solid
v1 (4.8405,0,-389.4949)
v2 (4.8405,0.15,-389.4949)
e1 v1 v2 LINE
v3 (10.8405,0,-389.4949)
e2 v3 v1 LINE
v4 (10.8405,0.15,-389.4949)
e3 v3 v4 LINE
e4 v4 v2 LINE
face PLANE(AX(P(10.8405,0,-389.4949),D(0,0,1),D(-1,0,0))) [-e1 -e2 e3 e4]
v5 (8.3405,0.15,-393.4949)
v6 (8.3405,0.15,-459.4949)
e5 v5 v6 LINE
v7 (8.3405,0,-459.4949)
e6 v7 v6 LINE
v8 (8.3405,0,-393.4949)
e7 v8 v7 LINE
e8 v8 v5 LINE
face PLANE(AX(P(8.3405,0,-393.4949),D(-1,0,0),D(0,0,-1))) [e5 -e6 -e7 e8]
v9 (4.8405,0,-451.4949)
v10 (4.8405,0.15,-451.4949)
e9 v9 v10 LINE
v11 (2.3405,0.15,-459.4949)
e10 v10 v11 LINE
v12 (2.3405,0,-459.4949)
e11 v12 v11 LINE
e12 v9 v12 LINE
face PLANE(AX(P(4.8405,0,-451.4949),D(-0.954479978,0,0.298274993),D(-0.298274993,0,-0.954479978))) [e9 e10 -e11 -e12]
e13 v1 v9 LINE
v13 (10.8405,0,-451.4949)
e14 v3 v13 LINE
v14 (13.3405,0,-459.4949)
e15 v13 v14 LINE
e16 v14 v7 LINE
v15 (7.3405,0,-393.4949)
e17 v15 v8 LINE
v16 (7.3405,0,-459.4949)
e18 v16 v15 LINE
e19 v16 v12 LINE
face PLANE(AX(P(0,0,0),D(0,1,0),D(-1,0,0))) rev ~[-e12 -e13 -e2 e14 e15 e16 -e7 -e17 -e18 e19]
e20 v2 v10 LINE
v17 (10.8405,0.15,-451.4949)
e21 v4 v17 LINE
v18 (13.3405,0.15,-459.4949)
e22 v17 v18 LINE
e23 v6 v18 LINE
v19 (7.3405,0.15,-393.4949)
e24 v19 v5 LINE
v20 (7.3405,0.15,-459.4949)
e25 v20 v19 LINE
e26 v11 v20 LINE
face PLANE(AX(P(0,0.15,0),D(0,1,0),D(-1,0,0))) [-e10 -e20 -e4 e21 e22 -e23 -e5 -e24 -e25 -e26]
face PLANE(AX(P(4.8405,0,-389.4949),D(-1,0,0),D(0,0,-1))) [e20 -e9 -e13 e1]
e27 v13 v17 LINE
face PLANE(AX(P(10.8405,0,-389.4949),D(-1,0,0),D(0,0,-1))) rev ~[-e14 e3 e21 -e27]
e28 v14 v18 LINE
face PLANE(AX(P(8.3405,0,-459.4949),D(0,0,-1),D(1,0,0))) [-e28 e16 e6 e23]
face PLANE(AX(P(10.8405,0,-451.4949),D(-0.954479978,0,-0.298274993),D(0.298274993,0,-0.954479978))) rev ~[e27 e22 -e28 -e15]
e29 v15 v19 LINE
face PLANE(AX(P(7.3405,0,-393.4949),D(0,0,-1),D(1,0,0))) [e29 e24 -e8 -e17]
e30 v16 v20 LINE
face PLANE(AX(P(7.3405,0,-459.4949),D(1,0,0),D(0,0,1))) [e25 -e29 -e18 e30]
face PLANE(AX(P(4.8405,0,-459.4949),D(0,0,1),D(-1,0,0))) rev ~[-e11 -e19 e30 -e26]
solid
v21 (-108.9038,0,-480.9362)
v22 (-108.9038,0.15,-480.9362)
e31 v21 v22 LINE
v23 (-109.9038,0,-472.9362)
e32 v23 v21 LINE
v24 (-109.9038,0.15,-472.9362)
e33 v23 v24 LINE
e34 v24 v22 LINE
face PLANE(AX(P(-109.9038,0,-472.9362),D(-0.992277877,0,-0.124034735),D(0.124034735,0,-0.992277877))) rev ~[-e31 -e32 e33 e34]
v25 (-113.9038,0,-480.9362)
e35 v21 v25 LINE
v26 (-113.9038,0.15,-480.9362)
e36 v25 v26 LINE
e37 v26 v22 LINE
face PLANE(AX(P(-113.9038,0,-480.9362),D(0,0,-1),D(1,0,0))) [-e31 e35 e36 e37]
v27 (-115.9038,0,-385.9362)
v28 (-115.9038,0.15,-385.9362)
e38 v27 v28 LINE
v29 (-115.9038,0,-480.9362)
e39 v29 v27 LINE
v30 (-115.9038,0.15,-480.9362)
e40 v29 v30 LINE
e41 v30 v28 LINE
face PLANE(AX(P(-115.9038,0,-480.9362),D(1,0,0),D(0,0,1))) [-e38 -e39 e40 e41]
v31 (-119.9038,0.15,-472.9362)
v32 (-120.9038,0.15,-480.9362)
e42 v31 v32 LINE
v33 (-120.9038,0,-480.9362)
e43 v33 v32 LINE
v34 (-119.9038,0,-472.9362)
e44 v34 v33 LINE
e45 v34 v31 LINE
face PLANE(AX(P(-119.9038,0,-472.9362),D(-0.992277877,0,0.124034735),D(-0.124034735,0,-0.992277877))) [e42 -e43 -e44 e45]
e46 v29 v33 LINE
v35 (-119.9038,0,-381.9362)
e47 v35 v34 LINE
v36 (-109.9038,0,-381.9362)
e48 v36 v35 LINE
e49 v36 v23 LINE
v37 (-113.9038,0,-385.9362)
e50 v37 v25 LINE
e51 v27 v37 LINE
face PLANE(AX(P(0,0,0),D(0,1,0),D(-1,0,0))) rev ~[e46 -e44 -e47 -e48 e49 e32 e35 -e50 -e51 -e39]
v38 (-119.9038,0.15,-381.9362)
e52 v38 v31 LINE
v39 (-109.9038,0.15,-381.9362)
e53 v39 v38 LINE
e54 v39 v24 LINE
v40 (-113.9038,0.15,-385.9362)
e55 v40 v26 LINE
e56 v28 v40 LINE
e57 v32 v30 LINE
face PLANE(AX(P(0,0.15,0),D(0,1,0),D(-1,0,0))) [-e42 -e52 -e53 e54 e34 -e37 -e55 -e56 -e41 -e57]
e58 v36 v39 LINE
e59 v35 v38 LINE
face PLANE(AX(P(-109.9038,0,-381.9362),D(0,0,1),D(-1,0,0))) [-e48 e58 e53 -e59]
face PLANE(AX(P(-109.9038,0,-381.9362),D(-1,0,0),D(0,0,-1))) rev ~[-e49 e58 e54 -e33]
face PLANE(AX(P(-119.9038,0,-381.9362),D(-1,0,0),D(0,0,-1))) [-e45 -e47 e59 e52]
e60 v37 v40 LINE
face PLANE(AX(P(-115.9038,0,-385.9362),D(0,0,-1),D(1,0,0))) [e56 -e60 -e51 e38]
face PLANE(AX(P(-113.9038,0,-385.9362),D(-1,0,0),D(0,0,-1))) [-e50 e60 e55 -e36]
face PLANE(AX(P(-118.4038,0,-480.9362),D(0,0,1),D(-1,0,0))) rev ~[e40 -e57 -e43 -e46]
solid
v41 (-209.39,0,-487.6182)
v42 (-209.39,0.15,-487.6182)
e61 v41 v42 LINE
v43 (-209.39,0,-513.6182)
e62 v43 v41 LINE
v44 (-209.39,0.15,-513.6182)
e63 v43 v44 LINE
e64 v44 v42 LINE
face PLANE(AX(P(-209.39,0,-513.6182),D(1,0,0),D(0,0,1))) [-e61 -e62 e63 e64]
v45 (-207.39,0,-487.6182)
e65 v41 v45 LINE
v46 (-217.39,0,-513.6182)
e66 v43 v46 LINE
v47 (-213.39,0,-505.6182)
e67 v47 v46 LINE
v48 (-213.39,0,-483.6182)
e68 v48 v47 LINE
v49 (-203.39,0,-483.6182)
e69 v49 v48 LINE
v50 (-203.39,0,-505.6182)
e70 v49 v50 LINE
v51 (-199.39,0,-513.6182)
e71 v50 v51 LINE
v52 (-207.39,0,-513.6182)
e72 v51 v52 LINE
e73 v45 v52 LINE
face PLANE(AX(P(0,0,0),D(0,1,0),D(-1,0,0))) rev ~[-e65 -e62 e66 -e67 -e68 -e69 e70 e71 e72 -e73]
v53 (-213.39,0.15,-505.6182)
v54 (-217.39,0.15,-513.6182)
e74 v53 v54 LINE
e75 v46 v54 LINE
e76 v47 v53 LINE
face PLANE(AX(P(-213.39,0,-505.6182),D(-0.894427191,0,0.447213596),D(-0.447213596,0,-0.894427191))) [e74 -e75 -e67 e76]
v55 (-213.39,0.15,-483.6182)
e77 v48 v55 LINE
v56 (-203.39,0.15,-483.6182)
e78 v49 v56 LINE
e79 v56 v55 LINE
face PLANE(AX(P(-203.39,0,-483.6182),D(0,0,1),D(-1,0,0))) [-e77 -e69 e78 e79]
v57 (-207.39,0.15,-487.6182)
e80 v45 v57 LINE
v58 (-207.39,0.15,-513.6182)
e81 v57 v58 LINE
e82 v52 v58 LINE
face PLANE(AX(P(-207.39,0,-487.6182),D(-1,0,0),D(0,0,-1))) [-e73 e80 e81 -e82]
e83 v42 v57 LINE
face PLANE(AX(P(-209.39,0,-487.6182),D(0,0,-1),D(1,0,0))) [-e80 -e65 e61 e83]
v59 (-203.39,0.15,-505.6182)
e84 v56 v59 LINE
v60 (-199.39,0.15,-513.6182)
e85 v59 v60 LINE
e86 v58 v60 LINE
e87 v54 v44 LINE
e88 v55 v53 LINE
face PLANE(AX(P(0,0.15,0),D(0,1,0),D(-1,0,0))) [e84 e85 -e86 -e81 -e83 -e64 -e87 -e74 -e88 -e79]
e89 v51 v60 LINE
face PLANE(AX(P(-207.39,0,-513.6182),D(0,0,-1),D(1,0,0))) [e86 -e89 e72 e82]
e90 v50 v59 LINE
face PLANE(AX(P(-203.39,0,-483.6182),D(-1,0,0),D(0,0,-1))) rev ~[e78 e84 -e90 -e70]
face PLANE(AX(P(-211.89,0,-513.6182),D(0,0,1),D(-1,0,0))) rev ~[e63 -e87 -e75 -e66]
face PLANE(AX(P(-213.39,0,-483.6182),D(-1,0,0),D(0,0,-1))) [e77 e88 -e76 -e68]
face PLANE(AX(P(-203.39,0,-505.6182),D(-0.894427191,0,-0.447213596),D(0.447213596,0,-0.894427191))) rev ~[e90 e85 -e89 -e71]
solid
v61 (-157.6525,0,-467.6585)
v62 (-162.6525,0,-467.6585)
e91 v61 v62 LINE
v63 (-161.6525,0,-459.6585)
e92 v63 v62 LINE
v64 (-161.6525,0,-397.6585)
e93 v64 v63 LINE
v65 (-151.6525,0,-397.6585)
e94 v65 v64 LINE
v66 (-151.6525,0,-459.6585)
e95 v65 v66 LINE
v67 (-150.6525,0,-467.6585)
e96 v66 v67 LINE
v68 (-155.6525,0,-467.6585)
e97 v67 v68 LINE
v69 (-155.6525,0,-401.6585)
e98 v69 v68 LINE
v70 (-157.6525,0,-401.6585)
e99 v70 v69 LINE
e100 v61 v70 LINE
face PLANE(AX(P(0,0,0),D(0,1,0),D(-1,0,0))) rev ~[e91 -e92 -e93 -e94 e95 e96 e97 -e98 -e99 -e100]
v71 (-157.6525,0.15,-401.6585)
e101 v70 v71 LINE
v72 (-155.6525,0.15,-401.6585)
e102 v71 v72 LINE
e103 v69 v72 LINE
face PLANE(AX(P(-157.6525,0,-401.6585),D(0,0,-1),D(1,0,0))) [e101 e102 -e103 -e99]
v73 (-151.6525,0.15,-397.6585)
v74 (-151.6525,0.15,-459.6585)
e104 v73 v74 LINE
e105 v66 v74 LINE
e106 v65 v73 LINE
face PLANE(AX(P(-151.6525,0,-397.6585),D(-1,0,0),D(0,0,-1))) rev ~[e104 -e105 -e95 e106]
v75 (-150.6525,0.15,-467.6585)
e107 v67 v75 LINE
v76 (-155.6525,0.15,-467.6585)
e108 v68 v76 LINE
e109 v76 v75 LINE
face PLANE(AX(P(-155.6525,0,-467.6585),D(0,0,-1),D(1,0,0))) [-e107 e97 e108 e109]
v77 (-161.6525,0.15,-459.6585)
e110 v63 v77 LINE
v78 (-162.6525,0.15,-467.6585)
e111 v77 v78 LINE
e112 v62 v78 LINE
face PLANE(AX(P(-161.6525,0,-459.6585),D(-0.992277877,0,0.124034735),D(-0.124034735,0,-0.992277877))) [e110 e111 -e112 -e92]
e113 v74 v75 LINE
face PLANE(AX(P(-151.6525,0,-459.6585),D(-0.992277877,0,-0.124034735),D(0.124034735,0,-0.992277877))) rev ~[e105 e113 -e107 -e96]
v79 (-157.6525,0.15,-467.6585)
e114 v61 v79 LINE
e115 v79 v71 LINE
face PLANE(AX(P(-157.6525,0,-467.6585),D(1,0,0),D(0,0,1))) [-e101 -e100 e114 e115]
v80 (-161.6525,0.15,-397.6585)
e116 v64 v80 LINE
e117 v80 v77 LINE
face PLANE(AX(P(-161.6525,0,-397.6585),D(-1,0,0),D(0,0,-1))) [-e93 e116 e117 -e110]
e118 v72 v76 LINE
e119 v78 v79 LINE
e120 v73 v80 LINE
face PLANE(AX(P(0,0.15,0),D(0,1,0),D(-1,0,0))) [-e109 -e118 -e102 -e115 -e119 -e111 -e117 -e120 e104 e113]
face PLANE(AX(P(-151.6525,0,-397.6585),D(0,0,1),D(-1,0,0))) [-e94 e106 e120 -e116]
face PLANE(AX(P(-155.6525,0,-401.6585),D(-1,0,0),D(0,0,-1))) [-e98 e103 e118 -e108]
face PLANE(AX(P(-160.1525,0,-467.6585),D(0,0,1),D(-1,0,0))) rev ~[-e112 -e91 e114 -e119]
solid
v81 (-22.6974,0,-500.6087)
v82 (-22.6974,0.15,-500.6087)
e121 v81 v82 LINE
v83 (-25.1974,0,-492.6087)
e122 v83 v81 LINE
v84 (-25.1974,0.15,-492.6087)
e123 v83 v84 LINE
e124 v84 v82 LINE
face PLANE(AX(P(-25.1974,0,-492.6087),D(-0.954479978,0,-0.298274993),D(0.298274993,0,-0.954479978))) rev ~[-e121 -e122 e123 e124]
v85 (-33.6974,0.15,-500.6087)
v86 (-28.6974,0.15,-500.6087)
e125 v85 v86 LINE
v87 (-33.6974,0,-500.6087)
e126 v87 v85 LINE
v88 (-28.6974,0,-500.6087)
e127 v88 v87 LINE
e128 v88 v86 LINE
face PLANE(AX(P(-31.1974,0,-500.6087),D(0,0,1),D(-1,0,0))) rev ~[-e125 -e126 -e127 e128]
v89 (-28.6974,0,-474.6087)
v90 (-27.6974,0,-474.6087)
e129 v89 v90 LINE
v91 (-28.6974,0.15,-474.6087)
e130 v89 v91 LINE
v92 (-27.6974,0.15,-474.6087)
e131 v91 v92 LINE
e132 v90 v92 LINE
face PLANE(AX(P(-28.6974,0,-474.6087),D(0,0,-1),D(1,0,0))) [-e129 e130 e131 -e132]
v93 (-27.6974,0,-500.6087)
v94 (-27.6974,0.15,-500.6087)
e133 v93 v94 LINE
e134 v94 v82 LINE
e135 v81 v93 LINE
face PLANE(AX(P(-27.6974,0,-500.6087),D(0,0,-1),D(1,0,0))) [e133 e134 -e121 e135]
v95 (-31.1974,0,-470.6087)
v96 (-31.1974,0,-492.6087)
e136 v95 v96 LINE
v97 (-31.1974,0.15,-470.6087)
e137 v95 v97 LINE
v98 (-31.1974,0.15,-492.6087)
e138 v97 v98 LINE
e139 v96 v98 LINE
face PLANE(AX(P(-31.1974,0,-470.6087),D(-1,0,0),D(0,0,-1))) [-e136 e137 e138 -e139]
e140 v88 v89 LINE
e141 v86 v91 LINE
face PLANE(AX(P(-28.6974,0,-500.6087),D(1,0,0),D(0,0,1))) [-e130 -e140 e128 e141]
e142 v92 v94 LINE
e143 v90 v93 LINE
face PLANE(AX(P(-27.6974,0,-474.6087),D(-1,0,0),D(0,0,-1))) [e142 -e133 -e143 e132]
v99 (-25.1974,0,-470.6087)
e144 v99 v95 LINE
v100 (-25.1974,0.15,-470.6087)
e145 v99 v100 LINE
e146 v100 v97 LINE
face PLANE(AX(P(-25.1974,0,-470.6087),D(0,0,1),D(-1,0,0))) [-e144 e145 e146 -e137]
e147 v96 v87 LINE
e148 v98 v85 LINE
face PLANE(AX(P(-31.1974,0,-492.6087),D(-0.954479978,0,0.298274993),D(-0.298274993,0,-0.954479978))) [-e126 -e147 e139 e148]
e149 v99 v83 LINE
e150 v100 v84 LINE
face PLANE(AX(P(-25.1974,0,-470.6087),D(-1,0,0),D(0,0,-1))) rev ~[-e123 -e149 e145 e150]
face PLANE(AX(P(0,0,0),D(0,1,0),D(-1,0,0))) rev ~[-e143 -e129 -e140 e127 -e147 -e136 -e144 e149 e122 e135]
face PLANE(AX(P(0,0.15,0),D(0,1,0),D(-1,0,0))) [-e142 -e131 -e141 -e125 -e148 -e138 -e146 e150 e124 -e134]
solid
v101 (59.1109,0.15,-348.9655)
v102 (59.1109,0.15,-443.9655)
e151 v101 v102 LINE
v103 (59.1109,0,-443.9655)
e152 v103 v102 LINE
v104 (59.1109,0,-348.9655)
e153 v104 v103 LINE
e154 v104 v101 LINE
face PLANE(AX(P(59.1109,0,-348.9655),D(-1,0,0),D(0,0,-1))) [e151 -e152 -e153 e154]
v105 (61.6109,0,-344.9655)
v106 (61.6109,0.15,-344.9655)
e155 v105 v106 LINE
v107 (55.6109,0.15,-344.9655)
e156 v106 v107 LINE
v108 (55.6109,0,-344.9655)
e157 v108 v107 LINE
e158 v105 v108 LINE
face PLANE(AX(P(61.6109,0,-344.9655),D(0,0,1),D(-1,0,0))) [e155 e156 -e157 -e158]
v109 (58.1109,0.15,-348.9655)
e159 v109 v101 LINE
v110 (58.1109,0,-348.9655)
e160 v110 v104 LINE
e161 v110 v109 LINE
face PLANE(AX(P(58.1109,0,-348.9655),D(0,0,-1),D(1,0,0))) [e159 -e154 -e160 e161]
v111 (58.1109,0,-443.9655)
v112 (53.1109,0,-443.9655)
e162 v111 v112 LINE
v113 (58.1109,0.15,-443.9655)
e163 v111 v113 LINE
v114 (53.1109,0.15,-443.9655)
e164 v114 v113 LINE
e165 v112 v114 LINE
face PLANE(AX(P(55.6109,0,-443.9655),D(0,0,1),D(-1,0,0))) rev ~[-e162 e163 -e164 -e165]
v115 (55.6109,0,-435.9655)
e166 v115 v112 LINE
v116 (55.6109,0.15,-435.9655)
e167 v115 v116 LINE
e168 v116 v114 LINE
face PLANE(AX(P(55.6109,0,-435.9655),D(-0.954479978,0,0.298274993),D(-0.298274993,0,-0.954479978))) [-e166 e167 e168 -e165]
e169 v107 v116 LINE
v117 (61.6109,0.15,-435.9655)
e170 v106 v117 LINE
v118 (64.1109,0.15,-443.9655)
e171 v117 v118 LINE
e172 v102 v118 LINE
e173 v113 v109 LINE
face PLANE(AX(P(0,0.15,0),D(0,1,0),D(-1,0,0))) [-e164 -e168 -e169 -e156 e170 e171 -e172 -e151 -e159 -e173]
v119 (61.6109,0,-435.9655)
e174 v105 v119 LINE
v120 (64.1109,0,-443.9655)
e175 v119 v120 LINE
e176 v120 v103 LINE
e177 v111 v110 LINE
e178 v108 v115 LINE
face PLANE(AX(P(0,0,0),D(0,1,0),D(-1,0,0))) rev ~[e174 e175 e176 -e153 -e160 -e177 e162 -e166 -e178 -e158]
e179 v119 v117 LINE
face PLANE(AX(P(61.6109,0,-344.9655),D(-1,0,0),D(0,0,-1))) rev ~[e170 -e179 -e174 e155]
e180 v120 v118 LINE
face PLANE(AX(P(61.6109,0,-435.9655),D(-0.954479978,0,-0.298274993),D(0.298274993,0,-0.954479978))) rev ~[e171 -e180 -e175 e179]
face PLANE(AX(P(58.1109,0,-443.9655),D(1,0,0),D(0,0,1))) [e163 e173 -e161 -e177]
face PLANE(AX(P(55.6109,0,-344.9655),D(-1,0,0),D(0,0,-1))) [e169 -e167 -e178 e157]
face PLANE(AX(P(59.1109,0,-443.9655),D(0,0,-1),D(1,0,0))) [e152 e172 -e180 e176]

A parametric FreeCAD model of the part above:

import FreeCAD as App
import Part
import Sketcher
from FreeCAD import Vector
Q = App.Units.Quantity


def add_polygon(sketch, points):
    """Adds a closed chain of lines whose ends are joined by coincident constraints."""
    first, n = sketch.GeometryCount, len(points)
    for a, b in zip(points, points[1:] + points[:1]):
        sketch.addGeometry(Part.LineSegment(App.Vector(*a, 0), App.Vector(*b, 0)), False)
    for i in range(n):
        sketch.addConstraint(Sketcher.Constraint("Coincident", first + i, 2, first + (i + 1) % n, 1))

doc = App.newDocument("Part")
body = doc.addObject("PartDesign::Body", "Body")
body.AllowCompound = True

# Sketch on XZ plane
sketch1 = body.newObject("Sketcher::SketchObject", "Sketch")
sketch1.AttachmentSupport = (doc.getObject("XZ_Plane"), [""])
sketch1.MapMode = "FlatFace"
add_polygon(sketch1, [(55.6, -345), (61.6, -345), (61.6, -436), (64.1, -444), (59.1, -444), (59.1, -349), (58.1, -349), (58.1, -444), (53.1, -444), (55.6, -436)])  # lines 0-9
add_polygon(sketch1, [(-119.9, -381.9), (-109.9, -381.9), (-109.9, -472.9), (-108.9, -480.9), (-113.9, -480.9), (-113.9, -385.9), (-115.9, -385.9), (-115.9, -480.9), (-120.9, -480.9), (-119.9, -472.9)])  # lines 10-19
add_polygon(sketch1, [(4.8, -389.5), (10.8, -389.5), (10.8, -451.5), (13.3, -459.5), (8.3, -459.5), (8.3, -393.5), (7.3, -393.5), (7.3, -459.5), (2.3, -459.5), (4.8, -451.5)])  # lines 20-29
add_polygon(sketch1, [(-31.2, -470.6), (-25.2, -470.6), (-25.2, -492.6), (-22.7, -500.6), (-27.7, -500.6), (-27.7, -474.6), (-28.7, -474.6), (-28.7, -500.6), (-33.7, -500.6), (-31.2, -492.6)])  # lines 30-39
add_polygon(sketch1, [(-161.7, -397.7), (-151.7, -397.7), (-151.7, -459.7), (-150.7, -467.7), (-155.7, -467.7), (-155.7, -401.7), (-157.7, -401.7), (-157.7, -467.7), (-162.7, -467.7), (-161.7, -459.7)])  # lines 40-49
add_polygon(sketch1, [(-213.4, -483.6), (-203.4, -483.6), (-203.4, -505.6), (-199.4, -513.6), (-207.4, -513.6), (-207.4, -487.6), (-209.4, -487.6), (-209.4, -513.6), (-217.4, -513.6), (-213.4, -505.6)])  # lines 50-59
sketch1.addConstraint([
    Sketcher.Constraint("Horizontal", 0),
    Sketcher.Constraint("Vertical", 1),
    Sketcher.Constraint("Horizontal", 3),
    Sketcher.Constraint("Vertical", 4),
    Sketcher.Constraint("Horizontal", 5),
    Sketcher.Constraint("Vertical", 6),
    Sketcher.Constraint("Horizontal", 7),
    Sketcher.Constraint("Vertical", 9),
    Sketcher.Constraint("Horizontal", 10),
    Sketcher.Constraint("Vertical", 11),
    Sketcher.Constraint("Horizontal", 13),
    Sketcher.Constraint("Vertical", 14),
    Sketcher.Constraint("Horizontal", 15),
    Sketcher.Constraint("Vertical", 16),
    Sketcher.Constraint("Horizontal", 17),
    Sketcher.Constraint("Vertical", 19),
    Sketcher.Constraint("Horizontal", 20),
    Sketcher.Constraint("Vertical", 21),
    Sketcher.Constraint("Horizontal", 23),
    Sketcher.Constraint("Vertical", 24),
    Sketcher.Constraint("Horizontal", 25),
    Sketcher.Constraint("Vertical", 26),
    Sketcher.Constraint("Horizontal", 27),
    Sketcher.Constraint("Vertical", 29),
    Sketcher.Constraint("Horizontal", 30),
    Sketcher.Constraint("Vertical", 31),
    Sketcher.Constraint("Horizontal", 33),
    Sketcher.Constraint("Vertical", 34),
    Sketcher.Constraint("Horizontal", 35),
    Sketcher.Constraint("Vertical", 36),
    Sketcher.Constraint("Horizontal", 37),
    Sketcher.Constraint("Vertical", 39),
    Sketcher.Constraint("Horizontal", 40),
    Sketcher.Constraint("Vertical", 41),
    Sketcher.Constraint("Horizontal", 43),
    Sketcher.Constraint("Vertical", 44),
    Sketcher.Constraint("Horizontal", 45),
    Sketcher.Constraint("Vertical", 46),
    Sketcher.Constraint("Horizontal", 47),
    Sketcher.Constraint("Vertical", 49),
    Sketcher.Constraint("Horizontal", 50),
    Sketcher.Constraint("Vertical", 51),
    Sketcher.Constraint("Horizontal", 53),
    Sketcher.Constraint("Vertical", 54),
    Sketcher.Constraint("Horizontal", 55),
    Sketcher.Constraint("Vertical", 56),
    Sketcher.Constraint("Horizontal", 57),
    Sketcher.Constraint("Vertical", 59),
    Sketcher.Constraint("Parallel", 2, 22),
    Sketcher.Constraint("Parallel", 8, 28),
    Sketcher.Constraint("Parallel", 22, 32),
    Sketcher.Constraint("Parallel", 28, 38),
    Sketcher.Constraint("Parallel", 12, 42),
    Sketcher.Constraint("Parallel", 18, 48),
    Sketcher.Constraint("Horizontal", 3, 2, 6, 2),
    Sketcher.Constraint("Horizontal", 1, 2, 8, 2),
    Sketcher.Constraint("Horizontal", 13, 2, 16, 2),
    Sketcher.Constraint("Horizontal", 11, 2, 18, 2),
    Sketcher.Constraint("Horizontal", 23, 2, 26, 2),
    Sketcher.Constraint("Horizontal", 21, 2, 28, 2),
    Sketcher.Constraint("Horizontal", 33, 2, 36, 2),
    Sketcher.Constraint("Horizontal", 31, 2, 38, 2),
    Sketcher.Constraint("Horizontal", 43, 2, 46, 2),
    Sketcher.Constraint("Horizontal", 41, 2, 48, 2),
    Sketcher.Constraint("Horizontal", 53, 2, 56, 2),
    Sketcher.Constraint("Horizontal", 51, 2, 58, 2),
    Sketcher.Constraint("Equal", 3, 7),
    Sketcher.Constraint("Equal", 7, 13),
    Sketcher.Constraint("Equal", 13, 17),
    Sketcher.Constraint("Equal", 0, 20),
    Sketcher.Constraint("Equal", 17, 23),
    Sketcher.Constraint("Equal", 5, 25),
    Sketcher.Constraint("Equal", 23, 27),
    Sketcher.Constraint("Equal", 20, 30),
    Sketcher.Constraint("Equal", 27, 33),
    Sketcher.Constraint("Equal", 25, 35),
    Sketcher.Constraint("Equal", 33, 37),
    Sketcher.Constraint("Equal", 10, 40),
    Sketcher.Constraint("Equal", 37, 43),
    Sketcher.Constraint("Equal", 15, 45),
    Sketcher.Constraint("Equal", 43, 47),
    Sketcher.Constraint("Equal", 40, 50),
    Sketcher.Constraint("Equal", 45, 55),
    Sketcher.Constraint("Equal", 53, 57),
    Sketcher.Constraint("Equal", 9, 11),
    Sketcher.Constraint("Equal", 6, 14),
    Sketcher.Constraint("Equal", 29, 41),
    Sketcher.Constraint("Equal", 26, 44),
    Sketcher.Constraint("Equal", 39, 51),
    Sketcher.Constraint("Equal", 36, 54),
    Sketcher.Constraint("Equal", 2, 8),
    Sketcher.Constraint("Equal", 12, 18),
    Sketcher.Constraint("Equal", 52, 58),
    Sketcher.Constraint("DistanceX", 0, 1, 0, 2, Q("6 mm")),
    Sketcher.Constraint("DistanceX", 3, 2, 3, 1, Q("5 mm")),
    Sketcher.Constraint("DistanceX", 5, 2, 5, 1, Q("1 mm")),
    Sketcher.Constraint("DistanceX", 15, 2, 15, 1, Q("2 mm")),
    Sketcher.Constraint("DistanceX", 53, 2, 53, 1, Q("8 mm")),
    Sketcher.Constraint("DistanceY", 2, 2, 1, 2, Q("8 mm")),
    Sketcher.Constraint("DistanceY", 4, 2, 0, 2, Q("4 mm")),
    Sketcher.Constraint("DistanceX", 11, 2, 12, 2, Q("1 mm")),
    Sketcher.Constraint("DistanceY", 12, 2, 11, 2, Q("8 mm")),
    Sketcher.Constraint("DistanceY", 24, 2, 20, 2, Q("4 mm")),
    Sketcher.Constraint("DistanceY", 32, 2, 30, 2, Q("30 mm")),
    Sketcher.Constraint("DistanceY", 34, 2, 30, 2, Q("4 mm")),
    Sketcher.Constraint("DistanceY", 52, 2, 51, 2, Q("8 mm")),
    Sketcher.Constraint("DistanceY", 1, 2, 1, 1, Q("91 mm")),
    Sketcher.Constraint("DistanceY", 21, 2, 21, 1, Q("62 mm")),
    Sketcher.Constraint("DistanceX", 50, 2, -1, 1, Q("203.39 mm")),
    Sketcher.Constraint("DistanceX", -1, 1, 0, 2, Q("61.611 mm")),
    Sketcher.Constraint("DistanceY", 20, 2, -1, 1, Q("389.495 mm")),
    Sketcher.Constraint("DistanceX", 30, 2, 27, 2, Q("27.538 mm")),
    Sketcher.Constraint("DistanceY", 0, 2, -1, 1, Q("344.9655 mm")),
    Sketcher.Constraint("DistanceX", 10, 2, -1, 1, Q("109.9038 mm")),
    Sketcher.Constraint("DistanceY", 10, 2, -1, 1, Q("381.9362 mm")),
    Sketcher.Constraint("DistanceX", -1, 1, 20, 2, Q("10.8405 mm")),
    Sketcher.Constraint("DistanceY", 30, 2, -1, 1, Q("470.6087 mm")),
    Sketcher.Constraint("DistanceX", 40, 2, -1, 1, Q("151.6525 mm")),
    Sketcher.Constraint("DistanceY", 40, 2, -1, 1, Q("397.6585 mm")),
    Sketcher.Constraint("DistanceY", 50, 2, -1, 1, Q("483.6182 mm")),
])
pad1 = body.newObject("PartDesign::Pad", "Pad")
pad1.Profile = sketch1
pad1.Length = 0.15
pad1.Reversed = True

doc.recompute()
